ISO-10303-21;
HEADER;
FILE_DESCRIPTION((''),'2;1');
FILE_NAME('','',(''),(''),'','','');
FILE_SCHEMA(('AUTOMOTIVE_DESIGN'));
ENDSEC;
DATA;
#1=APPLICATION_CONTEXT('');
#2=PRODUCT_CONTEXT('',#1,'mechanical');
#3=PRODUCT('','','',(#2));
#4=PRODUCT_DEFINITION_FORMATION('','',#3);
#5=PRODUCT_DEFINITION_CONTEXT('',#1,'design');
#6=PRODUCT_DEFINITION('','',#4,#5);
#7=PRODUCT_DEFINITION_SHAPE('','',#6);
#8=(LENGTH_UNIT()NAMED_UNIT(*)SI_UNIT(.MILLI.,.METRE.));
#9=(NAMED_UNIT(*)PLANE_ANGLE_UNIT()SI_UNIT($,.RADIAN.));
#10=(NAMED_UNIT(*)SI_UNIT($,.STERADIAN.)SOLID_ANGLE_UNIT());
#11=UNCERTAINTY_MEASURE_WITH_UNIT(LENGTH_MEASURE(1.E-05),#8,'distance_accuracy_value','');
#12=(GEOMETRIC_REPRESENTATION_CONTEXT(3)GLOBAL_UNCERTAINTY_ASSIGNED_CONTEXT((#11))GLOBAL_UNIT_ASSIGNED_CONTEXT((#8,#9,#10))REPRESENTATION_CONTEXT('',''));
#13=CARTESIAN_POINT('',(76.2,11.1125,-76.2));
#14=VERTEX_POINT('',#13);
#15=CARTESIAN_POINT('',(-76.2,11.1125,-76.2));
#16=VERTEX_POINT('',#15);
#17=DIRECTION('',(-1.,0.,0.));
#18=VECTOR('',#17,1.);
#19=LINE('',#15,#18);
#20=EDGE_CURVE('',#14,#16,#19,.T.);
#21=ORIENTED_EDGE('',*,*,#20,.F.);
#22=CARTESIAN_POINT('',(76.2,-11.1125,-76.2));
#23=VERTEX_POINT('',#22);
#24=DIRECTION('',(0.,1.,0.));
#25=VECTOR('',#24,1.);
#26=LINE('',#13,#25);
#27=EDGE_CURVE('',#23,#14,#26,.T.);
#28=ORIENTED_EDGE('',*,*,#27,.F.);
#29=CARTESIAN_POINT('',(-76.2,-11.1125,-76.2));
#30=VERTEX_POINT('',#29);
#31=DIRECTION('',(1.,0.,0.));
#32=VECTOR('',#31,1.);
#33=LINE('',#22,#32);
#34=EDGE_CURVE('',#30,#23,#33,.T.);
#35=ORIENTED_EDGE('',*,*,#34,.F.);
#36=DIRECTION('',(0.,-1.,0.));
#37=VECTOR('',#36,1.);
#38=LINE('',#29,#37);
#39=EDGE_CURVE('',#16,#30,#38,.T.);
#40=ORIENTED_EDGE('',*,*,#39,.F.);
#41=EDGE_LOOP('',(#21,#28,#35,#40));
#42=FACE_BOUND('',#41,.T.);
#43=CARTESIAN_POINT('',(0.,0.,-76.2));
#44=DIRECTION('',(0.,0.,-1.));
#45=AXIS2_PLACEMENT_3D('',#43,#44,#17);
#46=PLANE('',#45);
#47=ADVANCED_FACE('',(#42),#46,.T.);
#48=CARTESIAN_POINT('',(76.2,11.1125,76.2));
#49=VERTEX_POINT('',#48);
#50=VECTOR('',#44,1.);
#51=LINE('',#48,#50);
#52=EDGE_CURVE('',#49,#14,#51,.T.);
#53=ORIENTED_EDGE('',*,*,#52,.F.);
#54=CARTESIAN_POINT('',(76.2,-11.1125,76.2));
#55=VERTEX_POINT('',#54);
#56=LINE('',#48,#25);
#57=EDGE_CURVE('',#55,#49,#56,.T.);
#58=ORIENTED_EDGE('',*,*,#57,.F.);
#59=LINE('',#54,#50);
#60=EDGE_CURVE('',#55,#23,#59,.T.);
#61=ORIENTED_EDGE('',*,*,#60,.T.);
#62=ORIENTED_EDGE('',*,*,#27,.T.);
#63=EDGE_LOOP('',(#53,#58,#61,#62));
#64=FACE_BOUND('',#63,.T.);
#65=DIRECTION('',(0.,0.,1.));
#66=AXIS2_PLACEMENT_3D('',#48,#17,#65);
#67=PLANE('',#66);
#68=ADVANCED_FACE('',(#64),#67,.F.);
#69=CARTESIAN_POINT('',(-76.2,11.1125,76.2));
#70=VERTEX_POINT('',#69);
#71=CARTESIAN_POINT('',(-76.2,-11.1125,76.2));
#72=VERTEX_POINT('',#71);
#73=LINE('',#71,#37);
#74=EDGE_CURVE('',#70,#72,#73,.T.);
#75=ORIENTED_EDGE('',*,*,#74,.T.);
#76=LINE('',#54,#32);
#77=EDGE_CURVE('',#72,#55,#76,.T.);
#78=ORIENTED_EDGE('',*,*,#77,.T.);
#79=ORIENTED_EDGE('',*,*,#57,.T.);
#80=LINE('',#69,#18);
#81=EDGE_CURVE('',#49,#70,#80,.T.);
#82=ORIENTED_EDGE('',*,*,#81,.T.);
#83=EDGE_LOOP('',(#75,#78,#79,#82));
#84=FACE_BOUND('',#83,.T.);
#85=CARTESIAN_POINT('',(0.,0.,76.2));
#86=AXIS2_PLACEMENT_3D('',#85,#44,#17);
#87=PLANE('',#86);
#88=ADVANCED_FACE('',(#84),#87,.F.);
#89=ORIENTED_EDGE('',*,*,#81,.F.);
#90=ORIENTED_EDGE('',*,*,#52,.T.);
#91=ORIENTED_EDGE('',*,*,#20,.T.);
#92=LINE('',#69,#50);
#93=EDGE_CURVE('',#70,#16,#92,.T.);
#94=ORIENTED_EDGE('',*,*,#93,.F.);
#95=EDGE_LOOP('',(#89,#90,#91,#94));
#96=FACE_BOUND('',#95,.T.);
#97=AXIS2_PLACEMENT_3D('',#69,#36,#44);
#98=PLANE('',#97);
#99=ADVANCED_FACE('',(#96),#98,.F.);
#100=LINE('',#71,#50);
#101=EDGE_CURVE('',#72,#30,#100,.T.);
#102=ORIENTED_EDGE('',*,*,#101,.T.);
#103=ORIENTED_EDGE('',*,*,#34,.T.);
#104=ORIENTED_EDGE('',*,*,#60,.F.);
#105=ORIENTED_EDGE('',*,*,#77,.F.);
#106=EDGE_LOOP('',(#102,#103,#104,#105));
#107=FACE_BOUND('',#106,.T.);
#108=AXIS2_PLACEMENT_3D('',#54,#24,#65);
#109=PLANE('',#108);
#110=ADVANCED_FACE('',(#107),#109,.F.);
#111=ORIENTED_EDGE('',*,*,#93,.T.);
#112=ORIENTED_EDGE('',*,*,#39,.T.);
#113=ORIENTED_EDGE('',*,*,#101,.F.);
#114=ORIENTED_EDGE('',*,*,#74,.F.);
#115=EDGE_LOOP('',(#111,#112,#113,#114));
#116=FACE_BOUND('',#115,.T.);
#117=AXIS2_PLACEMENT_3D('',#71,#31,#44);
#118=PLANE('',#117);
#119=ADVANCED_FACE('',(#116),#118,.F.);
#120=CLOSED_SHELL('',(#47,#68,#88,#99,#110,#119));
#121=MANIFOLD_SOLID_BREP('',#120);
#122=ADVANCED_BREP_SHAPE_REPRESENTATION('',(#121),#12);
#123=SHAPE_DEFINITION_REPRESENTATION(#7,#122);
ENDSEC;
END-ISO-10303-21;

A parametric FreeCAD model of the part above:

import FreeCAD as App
import Part
import Sketcher
Q = App.Units.Quantity


def add_polygon(sketch, points):
    """Adds a closed chain of lines whose ends are joined by coincident constraints."""
    first, n = sketch.GeometryCount, len(points)
    for a, b in zip(points, points[1:] + points[:1]):
        sketch.addGeometry(Part.LineSegment(App.Vector(*a, 0), App.Vector(*b, 0)), False)
    for i in range(n):
        sketch.addConstraint(Sketcher.Constraint("Coincident", first + i, 2, first + (i + 1) % n, 1))

doc = App.newDocument("Part")
body = doc.addObject("PartDesign::Body", "Body")

sketch1 = doc.addObject("Sketcher::SketchObject", "Sketch")
body.addObject(sketch1)
sketch1.AttachmentSupport = (doc.XY_Plane, [""])
sketch1.MapMode = "FlatFace"
add_polygon(sketch1, [(-76, 11), (-76, -11), (76, -11), (76, 11)])
sketch1.addConstraint([
    Sketcher.Constraint("Vertical", 0),
    Sketcher.Constraint("Horizontal", 1),
    Sketcher.Constraint("Vertical", 2),
    Sketcher.Constraint("Horizontal", 3),
    Sketcher.Constraint("Symmetric", 0, 2, 2, 2, -1, 1),
    Sketcher.Constraint("DistanceX", 1, 1, 1, 2, Q("6 in")),
    Sketcher.Constraint("DistanceY", 0, 2, 0, 1, Q("0.875 in")),
])
pad1 = doc.addObject("PartDesign::Pad", "Pad")
body.addObject(pad1)
pad1.Profile = sketch1
pad1.Length = Q("6 in")
pad1.Midplane = True

doc.recompute()
